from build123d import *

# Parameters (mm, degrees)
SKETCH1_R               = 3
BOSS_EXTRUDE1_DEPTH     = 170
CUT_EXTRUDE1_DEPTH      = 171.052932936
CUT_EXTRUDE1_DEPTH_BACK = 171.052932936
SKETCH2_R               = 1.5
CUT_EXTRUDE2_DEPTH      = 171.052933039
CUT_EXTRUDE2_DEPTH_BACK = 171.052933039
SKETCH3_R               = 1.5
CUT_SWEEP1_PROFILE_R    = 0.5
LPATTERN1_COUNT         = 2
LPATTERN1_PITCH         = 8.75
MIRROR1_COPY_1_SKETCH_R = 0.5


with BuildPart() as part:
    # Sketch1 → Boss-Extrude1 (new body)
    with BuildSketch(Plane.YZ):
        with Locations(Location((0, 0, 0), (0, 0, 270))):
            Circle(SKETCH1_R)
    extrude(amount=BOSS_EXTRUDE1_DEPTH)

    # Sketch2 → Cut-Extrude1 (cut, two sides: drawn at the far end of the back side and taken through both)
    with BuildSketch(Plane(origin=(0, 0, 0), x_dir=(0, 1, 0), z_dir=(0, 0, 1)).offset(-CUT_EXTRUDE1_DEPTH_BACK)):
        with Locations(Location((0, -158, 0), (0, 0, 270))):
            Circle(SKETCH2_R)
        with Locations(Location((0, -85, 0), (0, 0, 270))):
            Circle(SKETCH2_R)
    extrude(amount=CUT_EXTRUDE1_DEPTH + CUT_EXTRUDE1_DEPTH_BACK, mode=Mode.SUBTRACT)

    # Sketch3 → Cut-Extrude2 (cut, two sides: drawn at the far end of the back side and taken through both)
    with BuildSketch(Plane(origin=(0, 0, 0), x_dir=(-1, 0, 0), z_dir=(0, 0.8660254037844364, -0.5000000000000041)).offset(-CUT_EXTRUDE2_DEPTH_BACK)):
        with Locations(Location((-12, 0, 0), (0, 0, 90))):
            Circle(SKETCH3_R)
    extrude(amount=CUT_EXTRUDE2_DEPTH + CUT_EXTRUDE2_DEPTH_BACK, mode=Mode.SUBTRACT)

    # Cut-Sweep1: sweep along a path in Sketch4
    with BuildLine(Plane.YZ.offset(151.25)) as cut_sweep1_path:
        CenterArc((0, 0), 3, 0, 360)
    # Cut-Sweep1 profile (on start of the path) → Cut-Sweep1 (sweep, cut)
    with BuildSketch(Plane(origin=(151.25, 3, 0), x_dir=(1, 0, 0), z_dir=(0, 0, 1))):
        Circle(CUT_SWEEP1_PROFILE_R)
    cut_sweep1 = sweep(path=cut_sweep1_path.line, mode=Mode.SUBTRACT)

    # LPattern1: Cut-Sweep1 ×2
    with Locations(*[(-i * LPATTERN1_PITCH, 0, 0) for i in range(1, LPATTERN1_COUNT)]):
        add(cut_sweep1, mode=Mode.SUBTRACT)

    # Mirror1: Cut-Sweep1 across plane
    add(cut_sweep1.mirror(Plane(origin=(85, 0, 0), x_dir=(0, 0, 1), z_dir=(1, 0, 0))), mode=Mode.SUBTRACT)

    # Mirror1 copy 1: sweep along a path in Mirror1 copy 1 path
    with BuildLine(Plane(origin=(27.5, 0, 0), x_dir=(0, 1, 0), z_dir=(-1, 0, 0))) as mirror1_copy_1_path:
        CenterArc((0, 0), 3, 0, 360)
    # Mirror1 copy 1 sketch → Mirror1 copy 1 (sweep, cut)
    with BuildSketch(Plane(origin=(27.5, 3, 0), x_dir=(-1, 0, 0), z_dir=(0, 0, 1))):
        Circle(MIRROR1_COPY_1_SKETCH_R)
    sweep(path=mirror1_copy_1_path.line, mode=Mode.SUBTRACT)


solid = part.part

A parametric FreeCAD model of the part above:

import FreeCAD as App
import Part
import Sketcher

V = App.Vector

doc = App.newDocument("Part")
body = doc.addObject("PartDesign::Body", "Body")

# Sketch on YZ plane
sketch1 = body.newObject("Sketcher::SketchObject", "Sketch")
sketch1.AttachmentSupport = (doc.getObject("YZ_Plane"), [""])
sketch1.MapMode = "FlatFace"
sketch1.addGeometry(Part.Circle(V(0, 0, 0), V(0, 0, 1), 3), False)
sketch1.addConstraint([
    Sketcher.Constraint("Coincident", 0, 3, -1, 1),
    Sketcher.Constraint("Diameter", 0, 6.0),
])
pad1 = body.newObject("PartDesign::Pad", "Pad")
pad1.Profile = sketch1
pad1.Length = 170

# Sketch on XY plane
sketch2 = body.newObject("Sketcher::SketchObject", "Sketch001")
sketch2.AttachmentSupport = (doc.getObject("XY_Plane"), [""])
sketch2.MapMode = "FlatFace"
sketch2.addGeometry([
    Part.Circle(V(158, 0, 0), V(0, 0, 1), 1.5),
    Part.Circle(V(85, 0, 0), V(0, 0, 1), 1.5),
], False)
sketch2.addConstraint([
    Sketcher.Constraint("Equal", 0, 1),
    Sketcher.Constraint("PointOnObject", 0, 3, -1),
    Sketcher.Constraint("PointOnObject", 1, 3, -1),
    Sketcher.Constraint("Diameter", 0, 3.0),
    Sketcher.Constraint("DistanceX", -1, 1, 0, 3, 158.0),
    Sketcher.Constraint("DistanceX", -1, 1, 1, 3, 85.0),
])
pocket1 = body.newObject("PartDesign::Pocket", "Pocket")
pocket1.Profile = sketch2
pocket1.Type = "ThroughAll"
pocket1.Midplane = True

# Sketch on an angled plane
sketch3 = body.newObject("Sketcher::SketchObject", "Sketch002")
sketch3.Placement = App.Placement(V(0, 0, 0), App.Rotation(V(-1, 0, 0), V(0, 0.5, 0.866025404), V(0, 0.866025404, -0.5), "ZXY"))
sketch3.addGeometry(Part.Circle(V(-12, 0, 0), V(0, 0, 1), 1.5), False)
sketch3.addConstraint([
    Sketcher.Constraint("PointOnObject", 0, 3, -1),
    Sketcher.Constraint("Diameter", 0, 3.0),
    Sketcher.Constraint("DistanceX", 0, 3, -1, 1, 12.0),
])
pocket2 = body.newObject("PartDesign::Pocket", "Pocket001")
pocket2.Profile = sketch3
pocket2.Type = "ThroughAll"
pocket2.Midplane = True

# Sketch on XY plane
sketch4 = body.newObject("Sketcher::SketchObject", "Sketch003")
sketch4.AttachmentSupport = (doc.getObject("XY_Plane"), [""])
sketch4.MapMode = "FlatFace"
sketch4.addGeometry(Part.Circle(V(151.2, 3, 0), V(0, 0, 1), 0.5), False)
sketch4.addConstraint([
    Sketcher.Constraint("Diameter", 0, 1.0),
    Sketcher.Constraint("DistanceY", -1, 1, 0, 3, 3.0),
    Sketcher.Constraint("DistanceX", -1, 1, 0, 3, 151.25),
])

# Sketch on YZ plane
sketch5 = body.newObject("Sketcher::SketchObject", "Sketch004")
sketch5.AttachmentSupport = (doc.getObject("YZ_Plane"), [""])
sketch5.MapMode = "FlatFace"
sketch5.AttachmentOffset = App.Placement(V(0, 0, 151.25), App.Rotation())
sketch5.addGeometry(Part.Circle(V(0, 0, 0), V(0, 0, 1), 3), False)
sketch5.addConstraint([
    Sketcher.Constraint("Coincident", 0, 3, -1, 1),
    Sketcher.Constraint("Diameter", 0, 6.0),
])
doc.recompute()

subtractivepipe = body.newObject("PartDesign::SubtractivePipe", "SubtractivePipe")
subtractivepipe.Profile = sketch4
subtractivepipe.Spine = (sketch5, ["Edge1"])
doc.recompute()

linearpattern = body.newObject("PartDesign::LinearPattern", "LinearPattern")
linearpattern.Originals = [subtractivepipe]
linearpattern.Direction = (doc.getObject("X_Axis"), [""])
linearpattern.Mode = "offset"
linearpattern.Offset = 8.75
linearpattern.Occurrences = 2
linearpattern.Reversed = True
body.Tip = linearpattern
doc.recompute()

datumplane = body.newObject("PartDesign::Plane", "DatumPlane")
datumplane.AttachmentSupport = (doc.getObject("YZ_Plane"), [""])
datumplane.MapMode = "FlatFace"
datumplane.AttachmentOffset = App.Placement(V(0, 0, 85), App.Rotation())
mirrored = body.newObject("PartDesign::Mirrored", "Mirrored")
mirrored.Originals = [subtractivepipe]
mirrored.MirrorPlane = (datumplane, [""])
body.Tip = mirrored

# Sketch on XY plane
sketch6 = body.newObject("Sketcher::SketchObject", "Sketch005")
sketch6.AttachmentSupport = (doc.getObject("XY_Plane"), [""])
sketch6.MapMode = "FlatFace"
sketch6.addGeometry(Part.Circle(V(27.5, 3, 0), V(0, 0, 1), 0.5), False)
sketch6.addConstraint([
    Sketcher.Constraint("Diameter", 0, 1.0),
    Sketcher.Constraint("DistanceY", -1, 1, 0, 3, 3.0),
    Sketcher.Constraint("DistanceX", -1, 1, 0, 3, 27.5),
])

# Sketch on YZ plane
sketch7 = body.newObject("Sketcher::SketchObject", "Sketch006")
sketch7.AttachmentSupport = (doc.getObject("YZ_Plane"), [""])
sketch7.MapMode = "FlatFace"
sketch7.AttachmentOffset = App.Placement(V(0, 0, 27.5), App.Rotation())
sketch7.addGeometry(Part.Circle(V(0, 0, 0), V(0, 0, 1), 3), False)
sketch7.addConstraint([
    Sketcher.Constraint("Coincident", 0, 3, -1, 1),
    Sketcher.Constraint("Diameter", 0, 6.0),
])
doc.recompute()

subtractivepipe2 = body.newObject("PartDesign::SubtractivePipe", "SubtractivePipe001")
subtractivepipe2.Profile = sketch6
subtractivepipe2.Spine = (sketch7, ["Edge1"])

doc.recompute()
